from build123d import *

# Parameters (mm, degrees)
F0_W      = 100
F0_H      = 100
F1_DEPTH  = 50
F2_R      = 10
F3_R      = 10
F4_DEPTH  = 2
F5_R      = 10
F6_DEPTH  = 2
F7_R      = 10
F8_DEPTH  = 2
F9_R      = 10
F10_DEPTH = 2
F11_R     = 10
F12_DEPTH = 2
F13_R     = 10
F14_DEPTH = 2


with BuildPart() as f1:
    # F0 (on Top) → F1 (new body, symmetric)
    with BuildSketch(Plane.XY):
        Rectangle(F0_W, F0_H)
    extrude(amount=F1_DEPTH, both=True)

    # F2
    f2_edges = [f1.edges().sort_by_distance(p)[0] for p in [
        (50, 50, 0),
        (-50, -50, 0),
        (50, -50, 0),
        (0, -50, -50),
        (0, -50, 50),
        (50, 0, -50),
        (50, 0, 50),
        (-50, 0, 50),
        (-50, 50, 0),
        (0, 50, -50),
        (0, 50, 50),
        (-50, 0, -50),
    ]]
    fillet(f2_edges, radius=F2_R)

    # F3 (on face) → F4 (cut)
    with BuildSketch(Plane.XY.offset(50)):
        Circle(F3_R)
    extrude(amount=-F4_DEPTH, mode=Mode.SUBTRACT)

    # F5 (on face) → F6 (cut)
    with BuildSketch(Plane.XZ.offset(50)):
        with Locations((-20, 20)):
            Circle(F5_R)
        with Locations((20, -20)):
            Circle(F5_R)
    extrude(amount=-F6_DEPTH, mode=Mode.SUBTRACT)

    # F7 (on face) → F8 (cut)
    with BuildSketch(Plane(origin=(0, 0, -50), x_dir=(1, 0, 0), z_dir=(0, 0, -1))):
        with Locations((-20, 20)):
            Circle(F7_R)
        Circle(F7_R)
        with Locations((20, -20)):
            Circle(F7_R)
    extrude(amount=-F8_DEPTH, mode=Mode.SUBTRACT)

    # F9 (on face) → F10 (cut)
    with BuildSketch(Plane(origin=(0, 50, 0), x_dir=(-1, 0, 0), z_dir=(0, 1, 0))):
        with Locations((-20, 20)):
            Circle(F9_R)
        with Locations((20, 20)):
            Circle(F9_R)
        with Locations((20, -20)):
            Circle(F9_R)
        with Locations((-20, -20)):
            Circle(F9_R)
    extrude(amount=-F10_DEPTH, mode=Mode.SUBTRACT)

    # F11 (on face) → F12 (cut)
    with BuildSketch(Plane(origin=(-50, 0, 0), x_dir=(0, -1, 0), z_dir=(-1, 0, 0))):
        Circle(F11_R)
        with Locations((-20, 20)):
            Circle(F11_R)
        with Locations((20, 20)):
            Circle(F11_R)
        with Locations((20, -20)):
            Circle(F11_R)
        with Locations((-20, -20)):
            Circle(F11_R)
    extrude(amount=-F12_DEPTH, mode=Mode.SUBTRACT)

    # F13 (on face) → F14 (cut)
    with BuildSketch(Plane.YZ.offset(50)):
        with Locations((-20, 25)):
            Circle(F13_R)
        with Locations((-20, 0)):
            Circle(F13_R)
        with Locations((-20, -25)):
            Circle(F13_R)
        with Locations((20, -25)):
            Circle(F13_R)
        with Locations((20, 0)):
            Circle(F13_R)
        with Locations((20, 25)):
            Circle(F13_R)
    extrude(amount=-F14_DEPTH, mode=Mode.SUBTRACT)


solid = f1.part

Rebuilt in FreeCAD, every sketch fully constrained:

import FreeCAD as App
import Part
import Sketcher

doc = App.newDocument("Part")
body = doc.addObject("PartDesign::Body", "Body")

# Sketch on XY plane
sketch1 = body.newObject("Sketcher::SketchObject", "Sketch")
sketch1.AttachmentSupport = (doc.getObject("XY_Plane"), [""])
sketch1.MapMode = "FlatFace"
sketch1.addGeometry([
    Part.LineSegment(App.Vector(-50, 50, 0), App.Vector(-50, -50, 0)),
    Part.LineSegment(App.Vector(-50, -50, 0), App.Vector(50, -50, 0)),
    Part.LineSegment(App.Vector(50, -50, 0), App.Vector(50, 50, 0)),
    Part.LineSegment(App.Vector(50, 50, 0), App.Vector(-50, 50, 0)),
], False)
sketch1.addConstraint([
    Sketcher.Constraint("Coincident", 0, 2, 1, 1),
    Sketcher.Constraint("Coincident", 1, 2, 2, 1),
    Sketcher.Constraint("Coincident", 2, 2, 3, 1),
    Sketcher.Constraint("Coincident", 3, 2, 0, 1),
    Sketcher.Constraint("Vertical", 0),
    Sketcher.Constraint("Horizontal", 1),
    Sketcher.Constraint("Vertical", 2),
    Sketcher.Constraint("Horizontal", 3),
    Sketcher.Constraint("Symmetric", 0, 2, 2, 2, -1, 1),
    Sketcher.Constraint("Equal", 3, 0),
    Sketcher.Constraint("DistanceX", 1, 1, 1, 2, 100.0),
])
pad1 = body.newObject("PartDesign::Pad", "Pad")
pad1.Profile = sketch1
pad1.Length = 100
pad1.Midplane = True
doc.recompute()

fillet = body.newObject("PartDesign::Fillet", "Fillet")
fillet.Base = (pad1, ["Edge1"])
fillet.UseAllEdges = True
fillet.Radius = 10

# Sketch on XY plane
sketch2 = body.newObject("Sketcher::SketchObject", "Sketch001")
sketch2.AttachmentSupport = (doc.getObject("XY_Plane"), [""])
sketch2.MapMode = "FlatFace"
sketch2.AttachmentOffset = App.Placement(App.Vector(0, 0, 50), App.Rotation())
sketch2.addGeometry(Part.Circle(App.Vector(0, 0, 0), App.Vector(0, 0, 1), 10), False)
sketch2.addConstraint([
    Sketcher.Constraint("Coincident", 0, 3, -1, 1),
    Sketcher.Constraint("Diameter", 0, 20.0),
])
pocket1 = body.newObject("PartDesign::Pocket", "Pocket")
pocket1.Profile = sketch2
pocket1.Length = 2

# Sketch on XZ plane
sketch3 = body.newObject("Sketcher::SketchObject", "Sketch002")
sketch3.AttachmentSupport = (doc.getObject("XZ_Plane"), [""])
sketch3.MapMode = "FlatFace"
sketch3.AttachmentOffset = App.Placement(App.Vector(0, 0, 50), App.Rotation())
sketch3.addGeometry([
    Part.Circle(App.Vector(-20, 20, 0), App.Vector(0, 0, 1), 10),
    Part.Circle(App.Vector(20, -20, 0), App.Vector(0, 0, 1), 10),
], False)
sketch3.addConstraint([
    Sketcher.Constraint("Equal", 0, 1),
    Sketcher.Constraint("Symmetric", 0, 3, 1, 3, -1, 1),
    Sketcher.Constraint("Diameter", 0, 20.0),
    Sketcher.Constraint("DistanceX", 0, 3, -1, 1, 20.0),
    Sketcher.Constraint("DistanceY", -1, 1, 0, 3, 20.0),
])
pocket2 = body.newObject("PartDesign::Pocket", "Pocket001")
pocket2.Profile = sketch3
pocket2.Length = 2

# Sketch on XY plane
sketch4 = body.newObject("Sketcher::SketchObject", "Sketch003")
sketch4.AttachmentSupport = (doc.getObject("XY_Plane"), [""])
sketch4.MapMode = "FlatFace"
sketch4.AttachmentOffset = App.Placement(App.Vector(0, 0, -50), App.Rotation())
sketch4.addGeometry([
    Part.Circle(App.Vector(-20, -20, 0), App.Vector(0, 0, 1), 10),
    Part.Circle(App.Vector(0, 0, 0), App.Vector(0, 0, 1), 10),
    Part.Circle(App.Vector(20, 20, 0), App.Vector(0, 0, 1), 10),
], False)
sketch4.addConstraint([
    Sketcher.Constraint("Coincident", 1, 3, -1, 1),
    Sketcher.Constraint("Equal", 0, 1),
    Sketcher.Constraint("Equal", 1, 2),
    Sketcher.Constraint("Symmetric", 0, 3, 2, 3, -1, 1),
    Sketcher.Constraint("Diameter", 0, 20.0),
    Sketcher.Constraint("DistanceX", 0, 3, -1, 1, 20.0),
    Sketcher.Constraint("DistanceY", 0, 3, -1, 1, 20.0),
])
pocket3 = body.newObject("PartDesign::Pocket", "Pocket002")
pocket3.Profile = sketch4
pocket3.Length = 2
pocket3.Reversed = True

# Sketch on XZ plane
sketch5 = body.newObject("Sketcher::SketchObject", "Sketch004")
sketch5.AttachmentSupport = (doc.getObject("XZ_Plane"), [""])
sketch5.MapMode = "FlatFace"
sketch5.AttachmentOffset = App.Placement(App.Vector(0, 0, -50), App.Rotation())
sketch5.addGeometry([
    Part.Circle(App.Vector(20, 20, 0), App.Vector(0, 0, 1), 10),
    Part.Circle(App.Vector(-20, 20, 0), App.Vector(0, 0, 1), 10),
    Part.Circle(App.Vector(-20, -20, 0), App.Vector(0, 0, 1), 10),
    Part.Circle(App.Vector(20, -20, 0), App.Vector(0, 0, 1), 10),
], False)
sketch5.addConstraint([
    Sketcher.Constraint("Equal", 0, 1),
    Sketcher.Constraint("Equal", 1, 2),
    Sketcher.Constraint("Equal", 2, 3),
    Sketcher.Constraint("Symmetric", 0, 3, 2, 3, -1, 1),
    Sketcher.Constraint("Symmetric", 1, 3, 3, 3, -1, 1),
    Sketcher.Constraint("Symmetric", 0, 3, 1, 3, -2),
    Sketcher.Constraint("Diameter", 0, 20.0),
    Sketcher.Constraint("DistanceX", -1, 1, 0, 3, 20.0),
    Sketcher.Constraint("DistanceY", -1, 1, 0, 3, 20.0),
])
pocket4 = body.newObject("PartDesign::Pocket", "Pocket003")
pocket4.Profile = sketch5
pocket4.Length = 2
pocket4.Reversed = True

# Sketch on YZ plane
sketch6 = body.newObject("Sketcher::SketchObject", "Sketch005")
sketch6.AttachmentSupport = (doc.getObject("YZ_Plane"), [""])
sketch6.MapMode = "FlatFace"
sketch6.AttachmentOffset = App.Placement(App.Vector(0, 0, -50), App.Rotation())
sketch6.addGeometry([
    Part.Circle(App.Vector(0, 0, 0), App.Vector(0, 0, 1), 10),  # 0
    Part.Circle(App.Vector(20, 20, 0), App.Vector(0, 0, 1), 10),  # 1
    Part.Circle(App.Vector(-20, 20, 0), App.Vector(0, 0, 1), 10),  # 2
    Part.Circle(App.Vector(-20, -20, 0), App.Vector(0, 0, 1), 10),  # 3
    Part.Circle(App.Vector(20, -20, 0), App.Vector(0, 0, 1), 10),  # 4
], False)
sketch6.addConstraint([
    Sketcher.Constraint("Coincident", 0, 3, -1, 1),
    Sketcher.Constraint("Equal", 0, 1),
    Sketcher.Constraint("Equal", 1, 2),
    Sketcher.Constraint("Equal", 2, 3),
    Sketcher.Constraint("Equal", 3, 4),
    Sketcher.Constraint("Symmetric", 1, 3, 3, 3, -1, 1),
    Sketcher.Constraint("Symmetric", 2, 3, 4, 3, -1, 1),
    Sketcher.Constraint("Symmetric", 1, 3, 2, 3, -2),
    Sketcher.Constraint("Diameter", 0, 20.0),
    Sketcher.Constraint("DistanceX", -1, 1, 1, 3, 20.0),
    Sketcher.Constraint("DistanceY", -1, 1, 1, 3, 20.0),
])
pocket5 = body.newObject("PartDesign::Pocket", "Pocket004")
pocket5.Profile = sketch6
pocket5.Length = 2
pocket5.Reversed = True

# Sketch on YZ plane
sketch7 = body.newObject("Sketcher::SketchObject", "Sketch006")
sketch7.AttachmentSupport = (doc.getObject("YZ_Plane"), [""])
sketch7.MapMode = "FlatFace"
sketch7.AttachmentOffset = App.Placement(App.Vector(0, 0, 50), App.Rotation())
sketch7.addGeometry([
    Part.Circle(App.Vector(-20, 25, 0), App.Vector(0, 0, 1), 10),  # 0
    Part.Circle(App.Vector(-20, 0, 0), App.Vector(0, 0, 1), 10),  # 1
    Part.Circle(App.Vector(-20, -25, 0), App.Vector(0, 0, 1), 10),  # 2
    Part.Circle(App.Vector(20, -25, 0), App.Vector(0, 0, 1), 10),  # 3
    Part.Circle(App.Vector(20, 0, 0), App.Vector(0, 0, 1), 10),  # 4
    Part.Circle(App.Vector(20, 25, 0), App.Vector(0, 0, 1), 10),  # 5
], False)
sketch7.addConstraint([
    Sketcher.Constraint("Equal", 0, 1),
    Sketcher.Constraint("Equal", 1, 2),
    Sketcher.Constraint("Equal", 2, 3),
    Sketcher.Constraint("Equal", 3, 4),
    Sketcher.Constraint("Equal", 4, 5),
    Sketcher.Constraint("Symmetric", 0, 3, 3, 3, -1, 1),
    Sketcher.Constraint("Symmetric", 1, 3, 4, 3, -1, 1),
    Sketcher.Constraint("Symmetric", 2, 3, 5, 3, -1, 1),
    Sketcher.Constraint("Symmetric", 2, 3, 3, 3, -2),
    Sketcher.Constraint("PointOnObject", 1, 3, -1),
    Sketcher.Constraint("Vertical", 0, 3, 1, 3),
    Sketcher.Constraint("Diameter", 0, 20.0),
    Sketcher.Constraint("DistanceX", 0, 3, -1, 1, 20.0),
    Sketcher.Constraint("DistanceY", -1, 1, 0, 3, 25.0),
])
pocket6 = body.newObject("PartDesign::Pocket", "Pocket005")
pocket6.Profile = sketch7
pocket6.Length = 2

doc.recompute()
